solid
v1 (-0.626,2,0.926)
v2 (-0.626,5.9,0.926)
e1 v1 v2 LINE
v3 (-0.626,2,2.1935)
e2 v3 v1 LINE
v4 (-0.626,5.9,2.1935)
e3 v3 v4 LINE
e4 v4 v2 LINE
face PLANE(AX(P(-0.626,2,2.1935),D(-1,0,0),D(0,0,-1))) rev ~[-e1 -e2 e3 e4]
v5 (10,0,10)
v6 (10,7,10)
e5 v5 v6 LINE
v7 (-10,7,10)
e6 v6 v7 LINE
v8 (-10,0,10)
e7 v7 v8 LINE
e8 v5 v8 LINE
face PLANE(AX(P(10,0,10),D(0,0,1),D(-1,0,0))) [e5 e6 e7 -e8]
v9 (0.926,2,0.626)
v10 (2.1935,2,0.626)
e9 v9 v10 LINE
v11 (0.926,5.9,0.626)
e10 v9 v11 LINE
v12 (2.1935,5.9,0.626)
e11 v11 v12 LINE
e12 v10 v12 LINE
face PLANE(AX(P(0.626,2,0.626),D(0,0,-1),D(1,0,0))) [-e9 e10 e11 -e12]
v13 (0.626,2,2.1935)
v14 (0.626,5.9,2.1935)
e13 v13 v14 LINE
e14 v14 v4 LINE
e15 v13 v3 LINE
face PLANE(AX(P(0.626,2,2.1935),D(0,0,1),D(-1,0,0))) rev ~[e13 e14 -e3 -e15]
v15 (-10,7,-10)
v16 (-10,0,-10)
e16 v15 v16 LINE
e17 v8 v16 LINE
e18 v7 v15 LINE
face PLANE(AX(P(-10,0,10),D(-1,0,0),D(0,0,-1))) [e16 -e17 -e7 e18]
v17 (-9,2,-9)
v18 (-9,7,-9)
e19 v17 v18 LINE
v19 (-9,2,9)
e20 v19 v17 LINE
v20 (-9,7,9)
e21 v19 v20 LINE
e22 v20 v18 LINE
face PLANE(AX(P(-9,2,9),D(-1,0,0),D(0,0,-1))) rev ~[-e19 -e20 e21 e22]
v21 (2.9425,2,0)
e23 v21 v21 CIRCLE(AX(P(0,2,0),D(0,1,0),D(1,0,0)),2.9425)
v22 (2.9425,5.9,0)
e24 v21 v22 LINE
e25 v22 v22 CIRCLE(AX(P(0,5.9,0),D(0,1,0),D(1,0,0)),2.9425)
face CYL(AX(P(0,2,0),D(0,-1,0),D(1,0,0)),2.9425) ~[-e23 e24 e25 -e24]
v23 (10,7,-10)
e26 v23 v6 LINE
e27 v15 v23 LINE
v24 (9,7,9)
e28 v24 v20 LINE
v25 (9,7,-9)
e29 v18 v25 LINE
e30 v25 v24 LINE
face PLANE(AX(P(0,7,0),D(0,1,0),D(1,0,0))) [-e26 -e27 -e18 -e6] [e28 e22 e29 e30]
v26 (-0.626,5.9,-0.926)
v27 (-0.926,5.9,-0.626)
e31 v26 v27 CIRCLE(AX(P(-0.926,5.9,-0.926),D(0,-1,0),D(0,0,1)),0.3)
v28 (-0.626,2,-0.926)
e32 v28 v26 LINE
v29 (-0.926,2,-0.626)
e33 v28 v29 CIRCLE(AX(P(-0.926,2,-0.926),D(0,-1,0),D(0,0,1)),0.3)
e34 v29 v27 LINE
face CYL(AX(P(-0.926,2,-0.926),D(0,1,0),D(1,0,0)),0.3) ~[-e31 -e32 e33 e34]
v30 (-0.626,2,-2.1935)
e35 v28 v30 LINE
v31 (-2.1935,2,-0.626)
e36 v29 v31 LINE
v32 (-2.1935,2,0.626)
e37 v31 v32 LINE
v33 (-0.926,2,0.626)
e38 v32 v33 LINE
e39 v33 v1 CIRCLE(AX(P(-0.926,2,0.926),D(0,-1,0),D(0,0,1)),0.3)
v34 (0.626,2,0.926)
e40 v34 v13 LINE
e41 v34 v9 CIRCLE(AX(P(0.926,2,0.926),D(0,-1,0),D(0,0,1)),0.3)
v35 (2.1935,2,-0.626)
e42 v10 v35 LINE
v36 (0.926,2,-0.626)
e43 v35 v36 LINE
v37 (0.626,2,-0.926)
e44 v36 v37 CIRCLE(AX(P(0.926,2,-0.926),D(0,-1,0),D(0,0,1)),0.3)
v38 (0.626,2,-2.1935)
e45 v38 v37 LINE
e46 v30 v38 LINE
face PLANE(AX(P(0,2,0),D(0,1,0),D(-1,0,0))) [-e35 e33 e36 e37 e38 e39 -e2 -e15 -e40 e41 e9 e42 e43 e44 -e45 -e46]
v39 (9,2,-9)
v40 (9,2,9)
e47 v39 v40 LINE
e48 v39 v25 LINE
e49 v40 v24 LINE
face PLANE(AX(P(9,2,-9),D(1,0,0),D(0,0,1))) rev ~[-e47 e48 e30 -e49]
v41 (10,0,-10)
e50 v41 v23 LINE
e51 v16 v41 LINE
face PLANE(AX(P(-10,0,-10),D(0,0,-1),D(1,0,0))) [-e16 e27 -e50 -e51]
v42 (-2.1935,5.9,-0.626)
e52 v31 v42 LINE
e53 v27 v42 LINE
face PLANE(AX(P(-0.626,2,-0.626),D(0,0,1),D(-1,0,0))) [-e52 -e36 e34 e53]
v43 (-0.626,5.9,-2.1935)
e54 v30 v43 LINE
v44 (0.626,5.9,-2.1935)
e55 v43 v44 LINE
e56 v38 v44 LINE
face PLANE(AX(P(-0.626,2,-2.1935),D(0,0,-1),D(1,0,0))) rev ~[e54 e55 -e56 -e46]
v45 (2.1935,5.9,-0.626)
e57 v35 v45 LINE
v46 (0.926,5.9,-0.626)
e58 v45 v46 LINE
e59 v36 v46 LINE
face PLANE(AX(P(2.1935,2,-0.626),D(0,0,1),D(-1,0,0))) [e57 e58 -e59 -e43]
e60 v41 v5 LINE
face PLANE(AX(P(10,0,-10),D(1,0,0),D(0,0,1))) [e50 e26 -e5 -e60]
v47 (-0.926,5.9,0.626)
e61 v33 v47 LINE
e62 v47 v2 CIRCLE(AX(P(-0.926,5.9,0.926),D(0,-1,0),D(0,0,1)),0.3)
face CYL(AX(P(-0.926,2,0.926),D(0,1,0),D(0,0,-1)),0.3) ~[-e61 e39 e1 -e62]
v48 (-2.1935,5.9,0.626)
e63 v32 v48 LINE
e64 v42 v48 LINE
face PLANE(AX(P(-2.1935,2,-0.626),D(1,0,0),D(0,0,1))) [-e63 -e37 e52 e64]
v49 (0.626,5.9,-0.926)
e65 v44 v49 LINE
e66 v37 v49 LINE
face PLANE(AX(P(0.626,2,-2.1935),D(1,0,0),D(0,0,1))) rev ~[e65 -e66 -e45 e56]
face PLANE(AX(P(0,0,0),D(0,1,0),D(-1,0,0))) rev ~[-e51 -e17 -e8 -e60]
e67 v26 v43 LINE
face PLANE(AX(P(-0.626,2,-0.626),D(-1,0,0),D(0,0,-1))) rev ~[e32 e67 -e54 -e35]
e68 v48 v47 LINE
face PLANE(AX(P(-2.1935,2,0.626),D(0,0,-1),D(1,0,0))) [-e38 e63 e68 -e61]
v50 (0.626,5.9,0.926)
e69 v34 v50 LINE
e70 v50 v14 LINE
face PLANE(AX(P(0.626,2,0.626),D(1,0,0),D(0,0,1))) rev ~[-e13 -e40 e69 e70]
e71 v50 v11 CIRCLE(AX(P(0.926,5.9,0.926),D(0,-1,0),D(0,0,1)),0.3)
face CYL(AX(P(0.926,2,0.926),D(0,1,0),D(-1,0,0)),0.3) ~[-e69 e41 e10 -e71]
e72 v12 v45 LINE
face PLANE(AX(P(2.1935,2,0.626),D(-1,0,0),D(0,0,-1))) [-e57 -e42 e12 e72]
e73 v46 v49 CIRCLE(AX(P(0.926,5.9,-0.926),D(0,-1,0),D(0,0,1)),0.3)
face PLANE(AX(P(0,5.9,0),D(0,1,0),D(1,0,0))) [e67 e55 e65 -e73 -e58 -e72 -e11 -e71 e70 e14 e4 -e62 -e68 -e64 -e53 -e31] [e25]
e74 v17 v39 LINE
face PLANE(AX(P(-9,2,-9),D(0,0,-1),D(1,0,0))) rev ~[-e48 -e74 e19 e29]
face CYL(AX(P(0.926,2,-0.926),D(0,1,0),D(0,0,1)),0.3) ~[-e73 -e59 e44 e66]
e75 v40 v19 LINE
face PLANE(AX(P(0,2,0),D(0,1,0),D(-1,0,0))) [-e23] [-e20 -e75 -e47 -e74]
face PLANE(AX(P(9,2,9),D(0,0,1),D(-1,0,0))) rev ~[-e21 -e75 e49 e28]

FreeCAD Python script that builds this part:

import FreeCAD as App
import Part
import Sketcher

V = App.Vector
Q = App.Units.Quantity


def edges_at(feature, points):
    """Names of the edges that pass closest to the given points."""
    edges = feature.Shape.Edges
    near = lambda p: min(range(len(edges)), key=lambda i: edges[i].distToShape(Part.Vertex(*p))[0])
    return sorted({f"Edge{near(p) + 1}" for p in points})


def add_polygon(sketch, points):
    """Adds a closed chain of lines whose ends are joined by coincident constraints."""
    first, n = sketch.GeometryCount, len(points)
    for a, b in zip(points, points[1:] + points[:1]):
        sketch.addGeometry(Part.LineSegment(App.Vector(*a, 0), App.Vector(*b, 0)), False)
    for i in range(n):
        sketch.addConstraint(Sketcher.Constraint("Coincident", first + i, 2, first + (i + 1) % n, 1))

doc = App.newDocument("Part")
body = doc.addObject("PartDesign::Body", "Body")

sketch1 = body.newObject("Sketcher::SketchObject", "Sketch")
sketch1.AttachmentSupport = (doc.getObject("XZ_Plane"), [""])
sketch1.MapMode = "FlatFace"
add_polygon(sketch1, [(-10, 10), (10, 10), (10, -10), (-10, -10)])
sketch1.addConstraint([
    Sketcher.Constraint("Horizontal", 0),
    Sketcher.Constraint("Vertical", 1),
    Sketcher.Constraint("Horizontal", 2),
    Sketcher.Constraint("Vertical", 3),
    Sketcher.Constraint("Symmetric", 0, 2, 2, 2, -1, 1),
    Sketcher.Constraint("Equal", 2, 1),
    Sketcher.Constraint("DistanceX", 0, 1, 0, 2, Q("20 mm")),
])
pad1 = body.newObject("PartDesign::Pad", "Pad")
pad1.Profile = sketch1
pad1.Length = 2
pad1.Reversed = True

sketch2 = body.newObject("Sketcher::SketchObject", "Sketch001")
sketch2.AttachmentSupport = (doc.getObject("XZ_Plane"), [""])
sketch2.MapMode = "FlatFace"
sketch2.AttachmentOffset = App.Placement(V(0, 0, -2), App.Rotation())
add_polygon(sketch2, [(-10, 10), (10, 10), (10, -10), (-10, -10)])
add_polygon(sketch2, [(9, -9), (9, 9), (-9, 9), (-9, -9)])
sketch2.addConstraint([
    Sketcher.Constraint("Horizontal", 0),
    Sketcher.Constraint("Vertical", 1),
    Sketcher.Constraint("Horizontal", 2),
    Sketcher.Constraint("Vertical", 3),
    Sketcher.Constraint("Vertical", 4),
    Sketcher.Constraint("Horizontal", 5),
    Sketcher.Constraint("Vertical", 6),
    Sketcher.Constraint("Horizontal", 7),
    Sketcher.Constraint("Symmetric", 0, 2, 2, 2, -1, 1),
    Sketcher.Constraint("Symmetric", 4, 2, 6, 2, -1, 1),
    Sketcher.Constraint("Equal", 2, 1),
    Sketcher.Constraint("Equal", 7, 4),
    Sketcher.Constraint("DistanceX", 0, 1, 0, 2, Q("20 mm")),
    Sketcher.Constraint("DistanceX", 5, 2, 5, 1, Q("18 mm")),
])
pad2 = body.newObject("PartDesign::Pad", "Pad001")
pad2.Profile = sketch2
pad2.Length = 5
pad2.Reversed = True

sketch3 = body.newObject("Sketcher::SketchObject", "Sketch002")
sketch3.AttachmentSupport = (doc.getObject("XZ_Plane"), [""])
sketch3.MapMode = "FlatFace"
sketch3.AttachmentOffset = App.Placement(V(0, 0, -2), App.Rotation())
sketch3.addGeometry(Part.Circle(V(0, 0, 0), V(0, 0, 1), 2.9425), False)
add_polygon(sketch3, [(0.626, 0.626), (0.626, 2.1935), (-0.626, 2.1935), (-0.626, 0.626), (-2.1935, 0.626), (-2.1935, -0.626), (-0.626, -0.626), (-0.626, -2.1935), (0.626, -2.1935), (0.626, -0.626), (2.1935, -0.626), (2.1935, 0.626)])
sketch3.addConstraint([
    Sketcher.Constraint("Vertical", 1),
    Sketcher.Constraint("Horizontal", 2),
    Sketcher.Constraint("Vertical", 3),
    Sketcher.Constraint("Horizontal", 4),
    Sketcher.Constraint("Vertical", 5),
    Sketcher.Constraint("Horizontal", 6),
    Sketcher.Constraint("Vertical", 7),
    Sketcher.Constraint("Horizontal", 8),
    Sketcher.Constraint("Vertical", 9),
    Sketcher.Constraint("Horizontal", 10),
    Sketcher.Constraint("Vertical", 11),
    Sketcher.Constraint("Horizontal", 12),
    Sketcher.Constraint("Coincident", 0, 3, -1, 1),
    Sketcher.Constraint("Symmetric", 1, 2, 7, 2, -1, 1),
    Sketcher.Constraint("Symmetric", 3, 2, 9, 2, -1, 1),
    Sketcher.Constraint("Symmetric", 5, 2, 11, 2, -1, 1),
    Sketcher.Constraint("Symmetric", 6, 2, 9, 2, -2),
    Sketcher.Constraint("Equal", 12, 1),
    Sketcher.Constraint("Equal", 8, 5),
    Sketcher.Constraint("Diameter", 0, Q("5.885 mm")),
    Sketcher.Constraint("DistanceX", 2, 2, 2, 1, Q("1.252 mm")),
    Sketcher.Constraint("DistanceX", 4, 2, 4, 1, Q("1.5675 mm")),
])
pad3 = body.newObject("PartDesign::Pad", "Pad002")
pad3.Profile = sketch3
pad3.Length = 3.9
pad3.Reversed = True
doc.recompute()

fillet = body.newObject("PartDesign::Fillet", "Fillet")
fillet.Base = (pad3, edges_at(pad3, [
    (-0.626, 3.95, -0.626),
    (-0.626, 3.95, 0.626),
    (0.626, 3.95, -0.626),
    (0.626, 3.95, 0.626),
]))
fillet.Radius = 0.3

doc.recompute()
